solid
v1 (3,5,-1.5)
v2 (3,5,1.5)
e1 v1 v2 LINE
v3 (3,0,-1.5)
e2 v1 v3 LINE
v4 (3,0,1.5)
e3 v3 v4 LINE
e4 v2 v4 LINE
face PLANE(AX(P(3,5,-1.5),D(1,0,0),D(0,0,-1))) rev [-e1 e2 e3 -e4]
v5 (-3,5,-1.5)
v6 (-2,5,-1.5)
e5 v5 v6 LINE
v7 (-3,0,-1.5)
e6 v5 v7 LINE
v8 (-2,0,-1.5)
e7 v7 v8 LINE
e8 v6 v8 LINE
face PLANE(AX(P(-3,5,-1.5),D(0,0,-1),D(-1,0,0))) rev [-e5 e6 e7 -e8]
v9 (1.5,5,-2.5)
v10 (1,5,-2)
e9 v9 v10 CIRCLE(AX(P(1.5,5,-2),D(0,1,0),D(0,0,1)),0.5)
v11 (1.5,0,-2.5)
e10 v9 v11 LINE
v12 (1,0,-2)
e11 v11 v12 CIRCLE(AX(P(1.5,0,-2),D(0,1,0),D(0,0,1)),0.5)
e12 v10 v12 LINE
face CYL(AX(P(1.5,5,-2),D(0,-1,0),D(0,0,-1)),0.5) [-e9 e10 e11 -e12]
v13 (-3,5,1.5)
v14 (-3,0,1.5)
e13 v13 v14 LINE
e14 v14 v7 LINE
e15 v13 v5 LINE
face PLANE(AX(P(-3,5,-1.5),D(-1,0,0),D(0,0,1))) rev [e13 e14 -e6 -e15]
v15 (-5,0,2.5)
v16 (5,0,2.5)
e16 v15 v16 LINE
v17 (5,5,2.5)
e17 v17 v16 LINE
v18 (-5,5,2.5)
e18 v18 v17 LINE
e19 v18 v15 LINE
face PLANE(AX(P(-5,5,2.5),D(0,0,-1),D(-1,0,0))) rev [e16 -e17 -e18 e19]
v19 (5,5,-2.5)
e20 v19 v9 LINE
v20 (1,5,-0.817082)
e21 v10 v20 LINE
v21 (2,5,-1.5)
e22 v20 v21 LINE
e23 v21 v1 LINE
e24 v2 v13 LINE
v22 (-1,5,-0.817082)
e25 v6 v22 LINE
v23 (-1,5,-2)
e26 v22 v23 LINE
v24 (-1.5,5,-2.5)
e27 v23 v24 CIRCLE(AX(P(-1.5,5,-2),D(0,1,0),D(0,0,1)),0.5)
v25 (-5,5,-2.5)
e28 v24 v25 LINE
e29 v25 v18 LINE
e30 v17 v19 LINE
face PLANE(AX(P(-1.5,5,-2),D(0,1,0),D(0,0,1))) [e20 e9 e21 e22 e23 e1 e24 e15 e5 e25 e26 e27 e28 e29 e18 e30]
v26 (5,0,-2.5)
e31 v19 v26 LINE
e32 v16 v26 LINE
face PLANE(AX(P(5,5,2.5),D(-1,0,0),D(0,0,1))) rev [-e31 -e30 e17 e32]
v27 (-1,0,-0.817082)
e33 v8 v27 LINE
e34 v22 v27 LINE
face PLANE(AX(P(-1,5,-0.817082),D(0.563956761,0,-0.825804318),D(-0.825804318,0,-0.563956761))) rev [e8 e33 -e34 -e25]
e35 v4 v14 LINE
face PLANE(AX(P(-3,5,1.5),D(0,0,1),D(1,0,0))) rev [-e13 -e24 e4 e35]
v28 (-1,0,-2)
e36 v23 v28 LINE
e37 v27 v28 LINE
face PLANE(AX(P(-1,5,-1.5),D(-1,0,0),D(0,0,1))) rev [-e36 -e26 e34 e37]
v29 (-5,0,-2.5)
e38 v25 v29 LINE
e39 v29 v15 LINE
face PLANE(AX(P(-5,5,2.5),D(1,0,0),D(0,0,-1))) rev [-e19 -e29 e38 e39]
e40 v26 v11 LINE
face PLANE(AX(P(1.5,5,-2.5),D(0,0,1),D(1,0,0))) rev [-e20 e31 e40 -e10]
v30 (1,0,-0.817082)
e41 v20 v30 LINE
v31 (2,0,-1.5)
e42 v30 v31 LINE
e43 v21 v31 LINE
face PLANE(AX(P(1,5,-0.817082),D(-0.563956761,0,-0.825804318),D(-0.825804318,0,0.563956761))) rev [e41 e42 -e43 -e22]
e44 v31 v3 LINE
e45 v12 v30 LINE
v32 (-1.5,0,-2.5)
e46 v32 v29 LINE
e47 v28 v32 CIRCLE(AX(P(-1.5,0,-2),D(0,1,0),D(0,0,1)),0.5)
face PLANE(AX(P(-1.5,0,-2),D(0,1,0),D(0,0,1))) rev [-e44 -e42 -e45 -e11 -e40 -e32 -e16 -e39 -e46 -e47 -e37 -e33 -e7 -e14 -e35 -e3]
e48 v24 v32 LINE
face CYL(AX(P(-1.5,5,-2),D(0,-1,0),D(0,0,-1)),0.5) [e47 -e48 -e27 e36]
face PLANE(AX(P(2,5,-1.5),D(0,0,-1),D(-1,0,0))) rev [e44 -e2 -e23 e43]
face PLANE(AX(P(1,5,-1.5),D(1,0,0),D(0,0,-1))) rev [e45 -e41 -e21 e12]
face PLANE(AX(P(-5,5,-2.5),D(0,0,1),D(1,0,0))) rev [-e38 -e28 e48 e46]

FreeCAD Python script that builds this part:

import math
import FreeCAD as App
import Part
import Sketcher
from FreeCAD import Vector
Q = App.Units.Quantity

doc = App.newDocument("Part")
body = doc.addObject("PartDesign::Body", "Body")

# Sketch on XZ plane
sketch1 = doc.addObject("Sketcher::SketchObject", "Sketch")
body.addObject(sketch1)
sketch1.AttachmentSupport = (doc.XZ_Plane, [""])
sketch1.MapMode = "FlatFace"
sketch1.addGeometry([
    Part.LineSegment(Vector(1, -0.817082, 0), Vector(2, -1.5, 0)),  # 0
    Part.LineSegment(Vector(2, -1.5, 0), Vector(3, -1.5, 0)),  # 1
    Part.LineSegment(Vector(3, -1.5, 0), Vector(3, 1.5, 0)),  # 2
    Part.LineSegment(Vector(3, 1.5, 0), Vector(-3, 1.5, 0)),  # 3
    Part.LineSegment(Vector(-3, 1.5, 0), Vector(-3, -1.5, 0)),  # 4
    Part.LineSegment(Vector(-3, -1.5, 0), Vector(-2, -1.5, 0)),  # 5
    Part.LineSegment(Vector(-2, -1.5, 0), Vector(-1, -0.817082, 0)),  # 6
    Part.LineSegment(Vector(-1, -0.817082, 0), Vector(-1, -2, 0)),  # 7
    Part.ArcOfCircle(Part.Circle(Vector(-1.5, -2, 0), Vector(0, 0, 1), 0.5), math.radians(-90), math.radians(0)),  # 8
    Part.LineSegment(Vector(-1.5, -2.5, 0), Vector(-5, -2.5, 0)),  # 9
    Part.LineSegment(Vector(-5, -2.5, 0), Vector(-5, 2.5, 0)),  # 10
    Part.LineSegment(Vector(-5, 2.5, 0), Vector(5, 2.5, 0)),  # 11
    Part.LineSegment(Vector(5, 2.5, 0), Vector(5, -2.5, 0)),  # 12
    Part.LineSegment(Vector(5, -2.5, 0), Vector(1.5, -2.5, 0)),  # 13
    Part.ArcOfCircle(Part.Circle(Vector(1.5, -2, 0), Vector(0, 0, 1), 0.5), math.radians(180), math.radians(270)),  # 14
    Part.LineSegment(Vector(1, -2, 0), Vector(1, -0.817082, 0)),  # 15
], False)
sketch1.addConstraint([
    Sketcher.Constraint("Coincident", 0, 2, 1, 1),
    Sketcher.Constraint("Coincident", 1, 2, 2, 1),
    Sketcher.Constraint("Coincident", 2, 2, 3, 1),
    Sketcher.Constraint("Coincident", 3, 2, 4, 1),
    Sketcher.Constraint("Coincident", 4, 2, 5, 1),
    Sketcher.Constraint("Coincident", 5, 2, 6, 1),
    Sketcher.Constraint("Coincident", 6, 2, 7, 1),
    Sketcher.Constraint("Tangent", 7, 2, 8, 2),
    Sketcher.Constraint("Tangent", 8, 1, 9, 1),
    Sketcher.Constraint("Coincident", 9, 2, 10, 1),
    Sketcher.Constraint("Coincident", 10, 2, 11, 1),
    Sketcher.Constraint("Coincident", 11, 2, 12, 1),
    Sketcher.Constraint("Coincident", 12, 2, 13, 1),
    Sketcher.Constraint("Tangent", 13, 2, 14, 2),
    Sketcher.Constraint("Tangent", 14, 1, 15, 1),
    Sketcher.Constraint("Coincident", 15, 2, 0, 1),
    Sketcher.Constraint("Horizontal", 1),
    Sketcher.Constraint("Vertical", 2),
    Sketcher.Constraint("Horizontal", 3),
    Sketcher.Constraint("Vertical", 4),
    Sketcher.Constraint("Horizontal", 5),
    Sketcher.Constraint("Vertical", 7),
    Sketcher.Constraint("Horizontal", 9),
    Sketcher.Constraint("Vertical", 10),
    Sketcher.Constraint("Horizontal", 11),
    Sketcher.Constraint("Vertical", 12),
    Sketcher.Constraint("Horizontal", 13),
    Sketcher.Constraint("Vertical", 15),
    Sketcher.Constraint("Equal", 8, 14),
    Sketcher.Constraint("Symmetric", 1, 2, 3, 2, -1, 1),
    Sketcher.Constraint("Symmetric", 9, 2, 11, 2, -1, 1),
    Sketcher.Constraint("Symmetric", 8, 3, 14, 3, -2),
    Sketcher.Constraint("Symmetric", 0, 2, 5, 2, -2),
    Sketcher.Constraint("Horizontal", 6, 2, 15, 2),
    Sketcher.Constraint("Radius", 8, Q("0.5 mm")),
    Sketcher.Constraint("DistanceX", 1, 1, 1, 2, Q("1 mm")),
    Sketcher.Constraint("DistanceX", 3, 2, 3, 1, Q("6 mm")),
    Sketcher.Constraint("DistanceX", 11, 1, 11, 2, Q("10 mm")),
    Sketcher.Constraint("DistanceY", 2, 1, 2, 2, Q("3 mm")),
    Sketcher.Constraint("DistanceY", 10, 1, 10, 2, Q("5 mm")),
    Sketcher.Constraint("DistanceX", 9, 2, 9, 1, Q("3.5 mm")),
    Sketcher.Constraint("DistanceY", 7, 2, 7, 1, Q("1.182918 mm")),
])
pad1 = doc.addObject("PartDesign::Pad", "Pad")
body.addObject(pad1)
pad1.Profile = sketch1
pad1.Length = 5
pad1.Reversed = True

doc.recompute()
